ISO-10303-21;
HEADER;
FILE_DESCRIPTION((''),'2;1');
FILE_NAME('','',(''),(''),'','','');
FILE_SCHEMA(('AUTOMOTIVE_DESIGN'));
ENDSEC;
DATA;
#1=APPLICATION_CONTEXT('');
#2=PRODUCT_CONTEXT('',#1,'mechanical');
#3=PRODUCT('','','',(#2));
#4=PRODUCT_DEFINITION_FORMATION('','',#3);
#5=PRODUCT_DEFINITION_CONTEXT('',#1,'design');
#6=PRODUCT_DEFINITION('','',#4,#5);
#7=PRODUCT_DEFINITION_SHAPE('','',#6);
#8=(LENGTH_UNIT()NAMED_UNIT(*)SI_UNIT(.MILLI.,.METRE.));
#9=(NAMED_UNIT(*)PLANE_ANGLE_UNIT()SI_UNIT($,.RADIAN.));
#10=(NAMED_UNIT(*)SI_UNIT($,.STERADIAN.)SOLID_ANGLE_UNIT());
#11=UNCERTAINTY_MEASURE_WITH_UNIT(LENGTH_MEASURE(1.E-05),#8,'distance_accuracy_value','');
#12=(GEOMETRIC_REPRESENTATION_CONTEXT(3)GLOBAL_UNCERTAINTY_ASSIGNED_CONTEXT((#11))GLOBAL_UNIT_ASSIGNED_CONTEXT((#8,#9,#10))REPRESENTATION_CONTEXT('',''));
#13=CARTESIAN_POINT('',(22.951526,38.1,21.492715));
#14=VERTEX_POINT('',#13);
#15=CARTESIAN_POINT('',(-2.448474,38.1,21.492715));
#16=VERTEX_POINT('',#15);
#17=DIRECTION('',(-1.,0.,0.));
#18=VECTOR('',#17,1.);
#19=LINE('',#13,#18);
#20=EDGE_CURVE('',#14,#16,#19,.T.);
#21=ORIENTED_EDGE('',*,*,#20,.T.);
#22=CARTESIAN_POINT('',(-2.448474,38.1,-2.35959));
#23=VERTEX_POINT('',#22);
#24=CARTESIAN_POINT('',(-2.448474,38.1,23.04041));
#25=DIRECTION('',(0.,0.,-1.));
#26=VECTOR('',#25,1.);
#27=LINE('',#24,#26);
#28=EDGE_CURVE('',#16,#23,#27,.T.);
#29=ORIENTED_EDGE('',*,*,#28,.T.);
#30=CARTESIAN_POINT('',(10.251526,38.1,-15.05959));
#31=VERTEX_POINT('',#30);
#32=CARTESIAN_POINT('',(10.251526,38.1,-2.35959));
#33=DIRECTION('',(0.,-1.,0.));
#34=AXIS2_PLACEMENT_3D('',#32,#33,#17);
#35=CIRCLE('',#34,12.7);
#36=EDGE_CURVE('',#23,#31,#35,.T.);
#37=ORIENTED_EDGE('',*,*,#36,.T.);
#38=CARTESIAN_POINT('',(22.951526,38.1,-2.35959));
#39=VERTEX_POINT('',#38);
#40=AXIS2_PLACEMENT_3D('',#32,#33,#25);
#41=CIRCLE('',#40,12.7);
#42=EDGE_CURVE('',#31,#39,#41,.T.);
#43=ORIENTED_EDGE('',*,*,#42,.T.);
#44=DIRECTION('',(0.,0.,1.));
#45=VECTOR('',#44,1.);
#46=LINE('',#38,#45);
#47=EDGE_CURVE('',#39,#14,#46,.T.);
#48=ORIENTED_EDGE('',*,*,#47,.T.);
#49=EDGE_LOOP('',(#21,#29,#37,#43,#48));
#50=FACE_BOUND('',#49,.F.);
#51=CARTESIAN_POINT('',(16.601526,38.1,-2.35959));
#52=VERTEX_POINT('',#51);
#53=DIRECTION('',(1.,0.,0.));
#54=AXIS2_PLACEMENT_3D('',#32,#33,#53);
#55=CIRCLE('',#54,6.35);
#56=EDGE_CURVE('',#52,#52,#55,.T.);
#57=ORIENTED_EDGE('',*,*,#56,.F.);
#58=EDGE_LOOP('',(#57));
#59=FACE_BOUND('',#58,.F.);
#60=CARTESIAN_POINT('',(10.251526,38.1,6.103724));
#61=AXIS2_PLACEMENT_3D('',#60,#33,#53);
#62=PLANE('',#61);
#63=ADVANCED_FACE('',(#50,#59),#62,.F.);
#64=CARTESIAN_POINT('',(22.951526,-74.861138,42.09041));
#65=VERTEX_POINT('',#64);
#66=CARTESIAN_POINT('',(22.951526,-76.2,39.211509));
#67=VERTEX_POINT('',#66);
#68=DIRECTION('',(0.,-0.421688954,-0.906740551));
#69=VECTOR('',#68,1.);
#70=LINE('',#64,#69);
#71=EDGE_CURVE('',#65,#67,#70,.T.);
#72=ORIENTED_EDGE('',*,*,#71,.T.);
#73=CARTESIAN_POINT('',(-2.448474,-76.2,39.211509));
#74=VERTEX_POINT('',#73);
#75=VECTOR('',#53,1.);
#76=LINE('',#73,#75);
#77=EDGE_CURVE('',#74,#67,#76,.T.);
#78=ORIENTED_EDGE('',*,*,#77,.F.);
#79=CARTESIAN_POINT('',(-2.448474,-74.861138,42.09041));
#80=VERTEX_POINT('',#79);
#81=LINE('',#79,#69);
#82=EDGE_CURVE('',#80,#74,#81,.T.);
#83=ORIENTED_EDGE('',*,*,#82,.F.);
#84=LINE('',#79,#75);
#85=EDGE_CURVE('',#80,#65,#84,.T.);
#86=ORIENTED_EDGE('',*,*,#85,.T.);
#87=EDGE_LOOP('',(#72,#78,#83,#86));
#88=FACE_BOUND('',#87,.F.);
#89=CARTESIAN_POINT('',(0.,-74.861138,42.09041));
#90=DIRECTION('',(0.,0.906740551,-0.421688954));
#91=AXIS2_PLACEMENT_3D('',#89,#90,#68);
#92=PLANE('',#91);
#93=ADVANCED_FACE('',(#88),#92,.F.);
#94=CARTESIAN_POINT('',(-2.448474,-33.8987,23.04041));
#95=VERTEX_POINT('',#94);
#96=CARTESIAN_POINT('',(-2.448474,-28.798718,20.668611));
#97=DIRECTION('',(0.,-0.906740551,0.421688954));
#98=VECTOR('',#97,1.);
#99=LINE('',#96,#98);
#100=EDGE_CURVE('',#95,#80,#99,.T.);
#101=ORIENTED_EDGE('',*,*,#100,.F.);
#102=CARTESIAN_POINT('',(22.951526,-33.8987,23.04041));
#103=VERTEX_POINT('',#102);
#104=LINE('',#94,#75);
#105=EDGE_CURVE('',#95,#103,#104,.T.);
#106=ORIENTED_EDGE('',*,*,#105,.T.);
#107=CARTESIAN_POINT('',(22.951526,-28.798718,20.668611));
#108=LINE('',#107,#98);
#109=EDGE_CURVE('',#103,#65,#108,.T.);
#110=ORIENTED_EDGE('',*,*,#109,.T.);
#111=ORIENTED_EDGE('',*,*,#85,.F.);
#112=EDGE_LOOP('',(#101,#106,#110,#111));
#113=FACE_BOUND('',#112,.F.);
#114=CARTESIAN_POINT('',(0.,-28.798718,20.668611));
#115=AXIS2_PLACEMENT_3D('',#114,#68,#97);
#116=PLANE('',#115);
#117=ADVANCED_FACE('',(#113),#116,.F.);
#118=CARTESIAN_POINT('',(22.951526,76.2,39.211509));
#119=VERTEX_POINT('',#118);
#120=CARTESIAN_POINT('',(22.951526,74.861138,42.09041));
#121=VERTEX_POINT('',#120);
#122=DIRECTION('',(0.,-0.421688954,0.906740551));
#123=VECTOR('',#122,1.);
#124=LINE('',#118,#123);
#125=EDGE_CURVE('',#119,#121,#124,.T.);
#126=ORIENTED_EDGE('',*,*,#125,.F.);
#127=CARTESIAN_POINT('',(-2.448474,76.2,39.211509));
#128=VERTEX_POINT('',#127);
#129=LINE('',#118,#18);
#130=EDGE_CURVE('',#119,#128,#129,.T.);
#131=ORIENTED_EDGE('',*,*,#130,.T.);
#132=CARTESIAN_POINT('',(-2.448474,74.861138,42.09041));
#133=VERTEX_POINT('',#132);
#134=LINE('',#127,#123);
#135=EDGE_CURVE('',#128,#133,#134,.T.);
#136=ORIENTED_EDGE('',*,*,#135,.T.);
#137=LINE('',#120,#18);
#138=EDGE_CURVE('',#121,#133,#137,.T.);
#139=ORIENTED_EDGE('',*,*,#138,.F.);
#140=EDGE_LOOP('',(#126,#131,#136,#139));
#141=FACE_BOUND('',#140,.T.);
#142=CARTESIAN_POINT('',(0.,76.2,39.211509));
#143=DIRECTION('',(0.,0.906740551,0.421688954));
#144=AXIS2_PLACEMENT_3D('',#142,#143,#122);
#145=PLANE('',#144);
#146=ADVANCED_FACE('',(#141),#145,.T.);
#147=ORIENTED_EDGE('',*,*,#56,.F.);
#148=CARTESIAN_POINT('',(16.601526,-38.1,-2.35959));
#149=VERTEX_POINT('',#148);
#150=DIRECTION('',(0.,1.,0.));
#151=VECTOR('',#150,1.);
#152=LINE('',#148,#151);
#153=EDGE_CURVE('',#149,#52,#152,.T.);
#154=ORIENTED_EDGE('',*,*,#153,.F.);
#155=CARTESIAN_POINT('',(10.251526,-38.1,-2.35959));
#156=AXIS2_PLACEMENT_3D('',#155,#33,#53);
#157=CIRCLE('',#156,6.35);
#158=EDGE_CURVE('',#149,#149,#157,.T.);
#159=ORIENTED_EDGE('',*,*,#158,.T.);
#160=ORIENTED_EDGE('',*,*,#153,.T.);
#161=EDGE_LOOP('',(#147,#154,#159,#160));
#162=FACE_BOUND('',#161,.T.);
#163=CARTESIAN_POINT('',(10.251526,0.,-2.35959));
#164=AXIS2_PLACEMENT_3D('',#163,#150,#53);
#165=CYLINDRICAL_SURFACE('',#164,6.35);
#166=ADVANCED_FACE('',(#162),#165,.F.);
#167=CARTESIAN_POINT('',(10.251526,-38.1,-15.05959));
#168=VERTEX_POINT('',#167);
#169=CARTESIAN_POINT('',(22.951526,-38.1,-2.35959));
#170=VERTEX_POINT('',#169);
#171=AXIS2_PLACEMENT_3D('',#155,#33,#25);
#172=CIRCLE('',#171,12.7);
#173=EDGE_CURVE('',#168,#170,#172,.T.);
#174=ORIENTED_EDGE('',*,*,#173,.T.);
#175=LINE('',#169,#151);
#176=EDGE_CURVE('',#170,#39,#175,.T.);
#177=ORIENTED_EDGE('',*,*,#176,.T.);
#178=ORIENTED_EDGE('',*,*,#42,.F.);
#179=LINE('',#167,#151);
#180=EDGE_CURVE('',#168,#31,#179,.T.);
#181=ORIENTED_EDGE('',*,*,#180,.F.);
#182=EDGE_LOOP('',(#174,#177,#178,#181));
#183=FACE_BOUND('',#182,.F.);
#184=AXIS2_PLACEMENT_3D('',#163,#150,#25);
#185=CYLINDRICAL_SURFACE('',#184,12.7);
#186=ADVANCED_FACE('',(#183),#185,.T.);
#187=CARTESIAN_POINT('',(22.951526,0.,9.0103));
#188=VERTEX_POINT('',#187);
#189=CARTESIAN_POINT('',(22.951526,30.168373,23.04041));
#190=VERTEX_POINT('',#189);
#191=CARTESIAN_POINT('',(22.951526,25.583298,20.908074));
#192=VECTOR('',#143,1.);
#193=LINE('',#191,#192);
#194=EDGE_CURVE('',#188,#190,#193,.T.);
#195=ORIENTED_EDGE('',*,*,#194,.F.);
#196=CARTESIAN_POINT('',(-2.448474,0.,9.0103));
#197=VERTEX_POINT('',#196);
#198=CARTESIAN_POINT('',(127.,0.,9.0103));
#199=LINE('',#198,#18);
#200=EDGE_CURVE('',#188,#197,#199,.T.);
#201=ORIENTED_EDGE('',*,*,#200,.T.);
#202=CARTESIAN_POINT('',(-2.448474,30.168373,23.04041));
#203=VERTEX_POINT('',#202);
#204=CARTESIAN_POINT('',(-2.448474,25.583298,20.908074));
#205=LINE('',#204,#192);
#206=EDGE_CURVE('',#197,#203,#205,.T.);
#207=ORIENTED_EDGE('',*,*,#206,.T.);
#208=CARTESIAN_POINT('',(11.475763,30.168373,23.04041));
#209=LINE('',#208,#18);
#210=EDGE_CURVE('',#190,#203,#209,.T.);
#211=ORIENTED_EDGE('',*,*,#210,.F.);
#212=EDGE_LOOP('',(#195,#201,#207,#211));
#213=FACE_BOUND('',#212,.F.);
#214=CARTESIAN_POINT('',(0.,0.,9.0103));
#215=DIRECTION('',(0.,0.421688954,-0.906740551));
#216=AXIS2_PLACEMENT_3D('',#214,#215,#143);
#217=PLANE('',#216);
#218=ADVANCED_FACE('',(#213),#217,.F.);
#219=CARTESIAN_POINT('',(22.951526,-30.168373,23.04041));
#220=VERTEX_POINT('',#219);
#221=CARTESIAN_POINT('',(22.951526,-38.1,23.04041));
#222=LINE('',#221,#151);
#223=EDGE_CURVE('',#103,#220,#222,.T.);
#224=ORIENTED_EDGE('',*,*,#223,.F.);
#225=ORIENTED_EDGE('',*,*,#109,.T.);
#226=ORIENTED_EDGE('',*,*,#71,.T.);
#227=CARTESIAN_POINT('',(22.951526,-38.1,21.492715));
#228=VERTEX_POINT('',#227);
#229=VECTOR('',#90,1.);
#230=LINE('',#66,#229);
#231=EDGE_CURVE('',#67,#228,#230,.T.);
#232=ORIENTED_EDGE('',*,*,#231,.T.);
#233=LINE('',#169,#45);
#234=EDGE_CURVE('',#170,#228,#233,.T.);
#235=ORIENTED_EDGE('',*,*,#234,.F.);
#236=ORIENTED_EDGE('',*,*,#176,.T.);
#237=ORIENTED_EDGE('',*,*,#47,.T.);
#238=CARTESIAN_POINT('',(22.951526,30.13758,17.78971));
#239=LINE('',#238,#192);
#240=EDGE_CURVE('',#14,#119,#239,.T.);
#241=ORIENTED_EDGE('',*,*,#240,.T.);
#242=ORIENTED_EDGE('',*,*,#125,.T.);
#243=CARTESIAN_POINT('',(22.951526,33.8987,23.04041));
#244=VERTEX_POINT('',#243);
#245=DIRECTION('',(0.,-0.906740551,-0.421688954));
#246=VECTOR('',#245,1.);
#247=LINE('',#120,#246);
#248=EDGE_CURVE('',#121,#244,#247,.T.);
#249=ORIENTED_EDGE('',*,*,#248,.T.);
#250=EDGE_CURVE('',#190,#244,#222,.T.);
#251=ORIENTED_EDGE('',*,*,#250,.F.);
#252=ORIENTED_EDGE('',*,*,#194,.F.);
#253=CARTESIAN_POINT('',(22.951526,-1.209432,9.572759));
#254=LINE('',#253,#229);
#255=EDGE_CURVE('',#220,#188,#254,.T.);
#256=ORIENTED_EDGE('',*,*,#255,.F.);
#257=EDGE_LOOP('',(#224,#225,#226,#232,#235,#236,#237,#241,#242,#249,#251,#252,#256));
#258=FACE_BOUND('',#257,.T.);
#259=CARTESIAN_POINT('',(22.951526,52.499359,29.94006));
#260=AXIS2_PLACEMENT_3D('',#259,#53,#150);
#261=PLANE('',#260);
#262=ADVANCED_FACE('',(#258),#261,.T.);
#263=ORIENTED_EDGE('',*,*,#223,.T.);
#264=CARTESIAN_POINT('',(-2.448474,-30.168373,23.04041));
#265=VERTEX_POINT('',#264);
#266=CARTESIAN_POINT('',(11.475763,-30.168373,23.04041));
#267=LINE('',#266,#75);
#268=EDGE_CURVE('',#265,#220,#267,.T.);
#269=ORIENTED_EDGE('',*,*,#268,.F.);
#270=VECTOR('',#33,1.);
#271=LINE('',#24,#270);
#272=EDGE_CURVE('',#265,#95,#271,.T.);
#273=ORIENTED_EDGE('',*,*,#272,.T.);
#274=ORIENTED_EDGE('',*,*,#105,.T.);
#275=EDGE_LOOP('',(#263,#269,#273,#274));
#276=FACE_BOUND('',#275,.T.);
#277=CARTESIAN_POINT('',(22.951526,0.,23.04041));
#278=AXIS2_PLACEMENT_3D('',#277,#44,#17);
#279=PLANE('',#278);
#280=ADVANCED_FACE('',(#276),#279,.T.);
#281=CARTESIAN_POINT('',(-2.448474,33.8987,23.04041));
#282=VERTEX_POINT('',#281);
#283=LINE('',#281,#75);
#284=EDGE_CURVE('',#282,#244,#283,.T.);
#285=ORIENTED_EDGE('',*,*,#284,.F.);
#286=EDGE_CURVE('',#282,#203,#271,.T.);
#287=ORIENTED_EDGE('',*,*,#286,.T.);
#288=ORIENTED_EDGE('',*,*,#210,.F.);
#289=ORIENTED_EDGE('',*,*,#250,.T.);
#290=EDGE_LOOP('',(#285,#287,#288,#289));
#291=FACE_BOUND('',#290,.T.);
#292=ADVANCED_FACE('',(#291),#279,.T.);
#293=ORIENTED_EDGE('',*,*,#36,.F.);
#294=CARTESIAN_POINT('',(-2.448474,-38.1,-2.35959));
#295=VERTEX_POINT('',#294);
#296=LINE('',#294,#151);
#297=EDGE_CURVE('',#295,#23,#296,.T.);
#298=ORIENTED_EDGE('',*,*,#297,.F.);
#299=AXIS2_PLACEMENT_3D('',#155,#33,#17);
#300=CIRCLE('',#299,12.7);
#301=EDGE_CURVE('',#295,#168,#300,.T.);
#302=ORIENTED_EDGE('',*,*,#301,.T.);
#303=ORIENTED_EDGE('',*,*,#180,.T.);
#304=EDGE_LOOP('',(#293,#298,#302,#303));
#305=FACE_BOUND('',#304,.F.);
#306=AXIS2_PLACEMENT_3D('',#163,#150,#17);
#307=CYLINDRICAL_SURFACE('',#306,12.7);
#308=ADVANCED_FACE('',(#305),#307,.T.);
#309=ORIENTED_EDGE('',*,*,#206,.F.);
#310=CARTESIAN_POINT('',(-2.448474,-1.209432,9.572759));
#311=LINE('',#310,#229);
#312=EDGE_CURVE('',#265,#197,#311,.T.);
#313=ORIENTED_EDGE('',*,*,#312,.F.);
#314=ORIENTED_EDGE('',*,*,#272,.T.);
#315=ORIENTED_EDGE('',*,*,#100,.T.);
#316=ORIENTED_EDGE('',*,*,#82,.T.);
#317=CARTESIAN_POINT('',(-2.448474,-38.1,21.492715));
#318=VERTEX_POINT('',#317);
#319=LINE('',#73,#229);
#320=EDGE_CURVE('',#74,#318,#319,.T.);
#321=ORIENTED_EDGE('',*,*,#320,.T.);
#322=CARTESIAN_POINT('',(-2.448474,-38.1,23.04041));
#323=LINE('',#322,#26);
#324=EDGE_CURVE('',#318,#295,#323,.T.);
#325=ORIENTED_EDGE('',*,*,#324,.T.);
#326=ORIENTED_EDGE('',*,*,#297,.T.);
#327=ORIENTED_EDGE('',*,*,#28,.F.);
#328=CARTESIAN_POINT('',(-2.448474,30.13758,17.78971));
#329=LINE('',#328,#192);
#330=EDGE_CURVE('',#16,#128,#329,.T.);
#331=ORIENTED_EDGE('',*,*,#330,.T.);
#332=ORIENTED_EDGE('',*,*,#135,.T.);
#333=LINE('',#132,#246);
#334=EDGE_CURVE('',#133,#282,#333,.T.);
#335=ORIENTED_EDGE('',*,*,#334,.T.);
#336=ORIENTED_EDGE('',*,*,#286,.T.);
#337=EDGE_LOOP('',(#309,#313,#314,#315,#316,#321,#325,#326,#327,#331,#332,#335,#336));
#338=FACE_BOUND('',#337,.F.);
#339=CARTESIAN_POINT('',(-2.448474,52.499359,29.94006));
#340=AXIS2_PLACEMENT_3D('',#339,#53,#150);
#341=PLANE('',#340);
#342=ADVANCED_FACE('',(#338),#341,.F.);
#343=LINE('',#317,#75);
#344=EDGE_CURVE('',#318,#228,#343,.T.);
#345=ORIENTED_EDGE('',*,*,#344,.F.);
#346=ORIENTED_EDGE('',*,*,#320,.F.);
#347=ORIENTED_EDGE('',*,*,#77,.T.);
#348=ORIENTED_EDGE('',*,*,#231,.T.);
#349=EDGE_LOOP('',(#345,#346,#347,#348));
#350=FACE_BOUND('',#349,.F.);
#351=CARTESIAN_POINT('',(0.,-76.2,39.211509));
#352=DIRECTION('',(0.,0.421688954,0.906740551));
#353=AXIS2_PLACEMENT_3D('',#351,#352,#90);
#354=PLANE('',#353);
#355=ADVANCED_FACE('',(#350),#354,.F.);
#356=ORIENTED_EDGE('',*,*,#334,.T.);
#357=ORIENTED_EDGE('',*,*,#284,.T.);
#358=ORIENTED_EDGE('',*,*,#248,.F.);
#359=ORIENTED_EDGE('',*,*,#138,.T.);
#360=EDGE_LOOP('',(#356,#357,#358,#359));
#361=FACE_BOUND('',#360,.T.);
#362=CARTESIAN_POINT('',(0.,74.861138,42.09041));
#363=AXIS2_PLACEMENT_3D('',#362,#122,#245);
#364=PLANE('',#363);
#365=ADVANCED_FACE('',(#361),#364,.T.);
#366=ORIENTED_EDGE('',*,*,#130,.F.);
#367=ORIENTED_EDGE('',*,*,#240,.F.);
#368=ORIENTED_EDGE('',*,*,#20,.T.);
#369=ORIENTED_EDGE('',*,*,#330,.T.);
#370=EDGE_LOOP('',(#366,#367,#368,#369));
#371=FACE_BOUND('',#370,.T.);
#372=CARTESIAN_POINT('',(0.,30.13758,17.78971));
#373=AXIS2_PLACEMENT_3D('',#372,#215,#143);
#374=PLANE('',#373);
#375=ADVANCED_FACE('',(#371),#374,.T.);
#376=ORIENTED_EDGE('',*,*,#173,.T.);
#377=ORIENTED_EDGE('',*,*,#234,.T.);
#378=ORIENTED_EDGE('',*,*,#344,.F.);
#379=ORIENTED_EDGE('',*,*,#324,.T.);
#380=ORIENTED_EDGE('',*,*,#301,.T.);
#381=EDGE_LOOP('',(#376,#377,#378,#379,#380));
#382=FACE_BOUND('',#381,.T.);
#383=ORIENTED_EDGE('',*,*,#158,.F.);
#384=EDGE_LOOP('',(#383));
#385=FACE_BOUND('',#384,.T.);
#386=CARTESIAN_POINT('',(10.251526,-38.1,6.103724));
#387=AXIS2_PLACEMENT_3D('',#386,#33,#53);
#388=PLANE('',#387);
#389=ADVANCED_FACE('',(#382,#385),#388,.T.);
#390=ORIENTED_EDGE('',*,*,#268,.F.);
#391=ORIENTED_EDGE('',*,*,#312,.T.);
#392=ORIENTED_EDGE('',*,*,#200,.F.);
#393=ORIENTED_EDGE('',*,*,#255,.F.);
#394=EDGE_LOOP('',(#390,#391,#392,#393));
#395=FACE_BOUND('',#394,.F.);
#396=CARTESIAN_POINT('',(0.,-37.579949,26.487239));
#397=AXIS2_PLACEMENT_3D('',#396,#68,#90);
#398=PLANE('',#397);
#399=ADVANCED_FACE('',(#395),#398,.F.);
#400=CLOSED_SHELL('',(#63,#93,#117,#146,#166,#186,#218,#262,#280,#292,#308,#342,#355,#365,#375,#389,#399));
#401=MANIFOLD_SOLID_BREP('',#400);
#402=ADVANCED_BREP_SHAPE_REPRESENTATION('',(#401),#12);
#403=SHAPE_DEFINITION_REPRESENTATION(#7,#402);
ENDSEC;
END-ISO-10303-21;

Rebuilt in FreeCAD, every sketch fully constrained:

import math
import FreeCAD as App
import Part
import Sketcher

V = App.Vector
Q = App.Units.Quantity


def add_polygon(sketch, points):
    """Adds a closed chain of lines whose ends are joined by coincident constraints."""
    first, n = sketch.GeometryCount, len(points)
    for a, b in zip(points, points[1:] + points[:1]):
        sketch.addGeometry(Part.LineSegment(App.Vector(*a, 0), App.Vector(*b, 0)), False)
    for i in range(n):
        sketch.addConstraint(Sketcher.Constraint("Coincident", first + i, 2, first + (i + 1) % n, 1))

doc = App.newDocument("Part")
body = doc.addObject("PartDesign::Body", "Body")

sketch1 = doc.addObject("Sketcher::SketchObject", "Sketch")
body.addObject(sketch1)
sketch1.AttachmentSupport = (doc.XZ_Plane, [""])
sketch1.MapMode = "FlatFace"
sketch1.addGeometry([
    Part.LineSegment(V(22.951526, 23.04041, 0), V(-2.448474, 23.04041, 0)),
    Part.LineSegment(V(-2.448474, 23.04041, 0), V(-2.448474, -2.35959, 0)),
    Part.ArcOfCircle(Part.Circle(V(10.251526, -2.35959, 0), V(0, 0, 1), 12.7), math.radians(180), math.radians(270)),
    Part.ArcOfCircle(Part.Circle(V(10.251526, -2.35959, 0), V(0, 0, 1), 12.7), math.radians(-90), math.radians(0)),
    Part.LineSegment(V(22.951526, -2.35959, 0), V(22.951526, 23.04041, 0)),
    Part.Circle(V(10.251526, -2.35959, 0), V(0, 0, 1), 6.35),
], False)
sketch1.addConstraint([
    Sketcher.Constraint("Coincident", 0, 2, 1, 1),
    Sketcher.Constraint("Tangent", 1, 2, 2, 1),
    Sketcher.Constraint("Tangent", 2, 2, 3, 1),
    Sketcher.Constraint("Tangent", 3, 2, 4, 1),
    Sketcher.Constraint("Coincident", 4, 2, 0, 1),
    Sketcher.Constraint("Horizontal", 0),
    Sketcher.Constraint("Vertical", 1),
    Sketcher.Constraint("Vertical", 4),
    Sketcher.Constraint("Coincident", 5, 3, 2, 3),
    Sketcher.Constraint("Equal", 2, 3),
    Sketcher.Constraint("Vertical", 5, 3, 2, 2),
    Sketcher.Constraint("Equal", 0, 1),
    Sketcher.Constraint("Diameter", 5, Q("0.5 in")),
    Sketcher.Constraint("Radius", 2, Q("0.5 in")),
    Sketcher.Constraint("DistanceY", 2, 3, -1, 1, 2.35959),
    Sketcher.Constraint("DistanceX", -1, 1, 2, 3, 10.251526),
])
pad1 = doc.addObject("PartDesign::Pad", "Pad")
body.addObject(pad1)
pad1.Profile = sketch1
pad1.Length = Q("3 in")
pad1.Midplane = True

sketch2 = doc.addObject("Sketcher::SketchObject", "Sketch001")
body.addObject(sketch2)
sketch2.AttachmentSupport = (doc.YZ_Plane, [""])
sketch2.MapMode = "FlatFace"
add_polygon(sketch2, [(74.861138, 42.09041), (28.798718, 20.668611), (30.13758, 17.78971), (76.2, 39.211509)])
add_polygon(sketch2, [(-28.798718, 20.668611), (-74.861138, 42.09041), (-76.2, 39.211509), (-30.13758, 17.78971)])
sketch2.addConstraint([
    Sketcher.Constraint("Symmetric", 3, 2, 4, 2, -2),
    Sketcher.Constraint("Symmetric", 2, 2, 5, 2, -2),
    Sketcher.Constraint("Symmetric", 1, 2, 6, 2, -2),
    Sketcher.Constraint("Symmetric", 0, 2, 7, 2, -2),
    Sketcher.Constraint("Perpendicular", 0, 1),
    Sketcher.Constraint("Perpendicular", 1, 2),
    Sketcher.Constraint("Perpendicular", 2, 3),
    Sketcher.Constraint("Distance", 0, Q("2 in")),
    Sketcher.Constraint("DistanceX", -1, 1, 2, 2, Q("3 in")),
    Sketcher.Constraint("Distance", 1, Q("0.125 in")),
    Sketcher.Constraint("DistanceY", 1, 2, 0, 2, 2.878901),
    Sketcher.Constraint("DistanceY", -1, 1, 0, 2, 20.668611),
])
pad2 = doc.addObject("PartDesign::Pad", "Pad001")
body.addObject(pad2)
pad2.Profile = sketch2
pad2.Type = "TwoLengths"
pad2.Length = 22.951526
pad2.Length2 = 2.448474

sketch3 = doc.addObject("Sketcher::SketchObject", "Sketch002")
body.addObject(sketch3)
sketch3.AttachmentSupport = (doc.YZ_Plane, [""])
sketch3.MapMode = "FlatFace"
add_polygon(sketch3, [(0, 9.0103), (37.793759, 26.586674), (-37.579949, 26.487239)])
sketch3.addConstraint([
    Sketcher.Constraint("PointOnObject", 2, 2, -2),
    Sketcher.Constraint("DistanceY", -1, 1, 2, 2, 9.0103),
    Sketcher.Constraint("DistanceX", -1, 1, 0, 2, 37.793759),
    Sketcher.Constraint("DistanceX", 1, 2, -1, 1, 37.579949),
    Sketcher.Constraint("DistanceY", -1, 1, 1, 2, 26.487239),
    Sketcher.Constraint("Distance", 0, 41.680897),
])
pocket1 = doc.addObject("PartDesign::Pocket", "Pocket")
body.addObject(pocket1)
pocket1.Profile = sketch3
pocket1.Length = Q("10 in")
pocket1.Midplane = True

doc.recompute()
